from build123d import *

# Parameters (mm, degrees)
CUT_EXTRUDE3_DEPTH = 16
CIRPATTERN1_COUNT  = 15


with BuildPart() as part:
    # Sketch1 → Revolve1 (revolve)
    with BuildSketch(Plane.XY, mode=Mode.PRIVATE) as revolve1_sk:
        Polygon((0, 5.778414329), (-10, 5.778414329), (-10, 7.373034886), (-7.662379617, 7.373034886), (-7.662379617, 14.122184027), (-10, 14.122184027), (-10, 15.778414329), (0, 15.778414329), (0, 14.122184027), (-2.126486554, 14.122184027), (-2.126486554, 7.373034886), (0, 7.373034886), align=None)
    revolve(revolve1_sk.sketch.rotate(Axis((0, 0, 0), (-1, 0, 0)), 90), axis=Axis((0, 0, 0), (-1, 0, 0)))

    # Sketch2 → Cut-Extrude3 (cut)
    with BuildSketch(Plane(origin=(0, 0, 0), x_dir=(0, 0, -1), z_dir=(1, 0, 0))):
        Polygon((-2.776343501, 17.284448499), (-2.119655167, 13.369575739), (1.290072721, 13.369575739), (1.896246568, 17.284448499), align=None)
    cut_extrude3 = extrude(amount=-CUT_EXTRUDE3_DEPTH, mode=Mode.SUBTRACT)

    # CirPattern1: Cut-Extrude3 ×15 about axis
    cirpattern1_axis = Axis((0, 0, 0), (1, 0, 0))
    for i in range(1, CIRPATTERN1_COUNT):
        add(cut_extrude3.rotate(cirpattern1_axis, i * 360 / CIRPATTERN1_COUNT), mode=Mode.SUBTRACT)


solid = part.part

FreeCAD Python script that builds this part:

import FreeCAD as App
import Part
import Sketcher
from FreeCAD import Vector


def add_polygon(sketch, points):
    """Adds a closed chain of lines whose ends are joined by coincident constraints."""
    first, n = sketch.GeometryCount, len(points)
    for a, b in zip(points, points[1:] + points[:1]):
        sketch.addGeometry(Part.LineSegment(App.Vector(*a, 0), App.Vector(*b, 0)), False)
    for i in range(n):
        sketch.addConstraint(Sketcher.Constraint("Coincident", first + i, 2, first + (i + 1) % n, 1))

doc = App.newDocument("Part")
body = doc.addObject("PartDesign::Body", "Body")

sketch1 = body.newObject("Sketcher::SketchObject", "Sketch")
sketch1.AttachmentSupport = (doc.getObject("XY_Plane"), [""])
sketch1.MapMode = "FlatFace"
add_polygon(sketch1, [(-10, 5.778414), (0, 5.778414), (0, 7.373035), (-2.126487, 7.373035), (-2.126487, 14.122184), (0, 14.122184), (0, 15.778414), (-10, 15.778414), (-10, 14.122184), (-7.66238, 14.122184), (-7.66238, 7.373035), (-10, 7.373035)])
sketch1.addConstraint(Sketcher.Constraint("Horizontal", 0))
sketch1.addConstraint(Sketcher.Constraint("Vertical", 1))
sketch1.addConstraint(Sketcher.Constraint("Horizontal", 2))
sketch1.addConstraint(Sketcher.Constraint("Vertical", 3))
sketch1.addConstraint(Sketcher.Constraint("Horizontal", 4))
sketch1.addConstraint(Sketcher.Constraint("Vertical", 5))
sketch1.addConstraint(Sketcher.Constraint("Horizontal", 6))
sketch1.addConstraint(Sketcher.Constraint("Vertical", 7))
sketch1.addConstraint(Sketcher.Constraint("Horizontal", 8))
sketch1.addConstraint(Sketcher.Constraint("Vertical", 9))
sketch1.addConstraint(Sketcher.Constraint("Horizontal", 10))
sketch1.addConstraint(Sketcher.Constraint("Vertical", 11))
sketch1.addConstraint(Sketcher.Constraint("PointOnObject", 0, 2, -2))
sketch1.addConstraint(Sketcher.Constraint("PointOnObject", 4, 2, -2))
sketch1.addConstraint(Sketcher.Constraint("Horizontal", 4, 2, 7, 2))
sketch1.addConstraint(Sketcher.Constraint("Horizontal", 2, 2, 9, 2))
sketch1.addConstraint(Sketcher.Constraint("Vertical", 7, 2, 10, 2))
sketch1.addConstraint(Sketcher.Constraint("DistanceX", 0, 1, 0, 2, 10.0))
sketch1.addConstraint(Sketcher.Constraint("DistanceY", 0, 2, 5, 2, 10.0))
sketch1.addConstraint(Sketcher.Constraint("DistanceX", 8, 1, 8, 2, 2.33762))
sketch1.addConstraint(Sketcher.Constraint("DistanceY", 1, 1, 1, 2, 1.594621))
sketch1.addConstraint(Sketcher.Constraint("DistanceY", 3, 1, 3, 2, 6.749149))
sketch1.addConstraint(Sketcher.Constraint("DistanceX", 2, 2, 2, 1, 2.126487))
sketch1.addConstraint(Sketcher.Constraint("DistanceY", -1, 1, 0, 2, 5.778414))
revolution = body.newObject("PartDesign::Revolution", "Revolution")
revolution.Profile = sketch1
revolution.ReferenceAxis = (sketch1, ["H_Axis"])
revolution.Angle = 360

sketch2 = body.newObject("Sketcher::SketchObject", "Sketch001")
sketch2.AttachmentSupport = (doc.getObject("YZ_Plane"), [""])
sketch2.MapMode = "FlatFace"
add_polygon(sketch2, [(17.284448, 2.776344), (13.369576, 2.119655), (13.369576, -1.290073), (17.284448, -1.896247)])
sketch2.addConstraint(Sketcher.Constraint("Vertical", 1))
sketch2.addConstraint(Sketcher.Constraint("Vertical", 3))
sketch2.addConstraint(Sketcher.Constraint("DistanceY", 3, 1, 3, 2, 4.67259))
sketch2.addConstraint(Sketcher.Constraint("DistanceY", 2, 2, 0, 2, 4.015902))
sketch2.addConstraint(Sketcher.Constraint("DistanceY", 1, 2, 1, 1, 3.409728))
sketch2.addConstraint(Sketcher.Constraint("DistanceX", -1, 1, 2, 2, 17.284448))
sketch2.addConstraint(Sketcher.Constraint("Distance", 0, 3.969568))
sketch2.addConstraint(Sketcher.Constraint("DistanceY", -1, 1, 0, 2, 2.119655))
pocket1 = body.newObject("PartDesign::Pocket", "Pocket")
pocket1.Profile = sketch2
pocket1.Length = 16
doc.recompute()

polarpattern = body.newObject("PartDesign::PolarPattern", "PolarPattern")
polarpattern.Originals = [pocket1]
polarpattern.Axis = (doc.getObject("X_Axis"), [""])
polarpattern.Angle = 360
polarpattern.Occurrences = 15
body.Tip = polarpattern

doc.recompute()
